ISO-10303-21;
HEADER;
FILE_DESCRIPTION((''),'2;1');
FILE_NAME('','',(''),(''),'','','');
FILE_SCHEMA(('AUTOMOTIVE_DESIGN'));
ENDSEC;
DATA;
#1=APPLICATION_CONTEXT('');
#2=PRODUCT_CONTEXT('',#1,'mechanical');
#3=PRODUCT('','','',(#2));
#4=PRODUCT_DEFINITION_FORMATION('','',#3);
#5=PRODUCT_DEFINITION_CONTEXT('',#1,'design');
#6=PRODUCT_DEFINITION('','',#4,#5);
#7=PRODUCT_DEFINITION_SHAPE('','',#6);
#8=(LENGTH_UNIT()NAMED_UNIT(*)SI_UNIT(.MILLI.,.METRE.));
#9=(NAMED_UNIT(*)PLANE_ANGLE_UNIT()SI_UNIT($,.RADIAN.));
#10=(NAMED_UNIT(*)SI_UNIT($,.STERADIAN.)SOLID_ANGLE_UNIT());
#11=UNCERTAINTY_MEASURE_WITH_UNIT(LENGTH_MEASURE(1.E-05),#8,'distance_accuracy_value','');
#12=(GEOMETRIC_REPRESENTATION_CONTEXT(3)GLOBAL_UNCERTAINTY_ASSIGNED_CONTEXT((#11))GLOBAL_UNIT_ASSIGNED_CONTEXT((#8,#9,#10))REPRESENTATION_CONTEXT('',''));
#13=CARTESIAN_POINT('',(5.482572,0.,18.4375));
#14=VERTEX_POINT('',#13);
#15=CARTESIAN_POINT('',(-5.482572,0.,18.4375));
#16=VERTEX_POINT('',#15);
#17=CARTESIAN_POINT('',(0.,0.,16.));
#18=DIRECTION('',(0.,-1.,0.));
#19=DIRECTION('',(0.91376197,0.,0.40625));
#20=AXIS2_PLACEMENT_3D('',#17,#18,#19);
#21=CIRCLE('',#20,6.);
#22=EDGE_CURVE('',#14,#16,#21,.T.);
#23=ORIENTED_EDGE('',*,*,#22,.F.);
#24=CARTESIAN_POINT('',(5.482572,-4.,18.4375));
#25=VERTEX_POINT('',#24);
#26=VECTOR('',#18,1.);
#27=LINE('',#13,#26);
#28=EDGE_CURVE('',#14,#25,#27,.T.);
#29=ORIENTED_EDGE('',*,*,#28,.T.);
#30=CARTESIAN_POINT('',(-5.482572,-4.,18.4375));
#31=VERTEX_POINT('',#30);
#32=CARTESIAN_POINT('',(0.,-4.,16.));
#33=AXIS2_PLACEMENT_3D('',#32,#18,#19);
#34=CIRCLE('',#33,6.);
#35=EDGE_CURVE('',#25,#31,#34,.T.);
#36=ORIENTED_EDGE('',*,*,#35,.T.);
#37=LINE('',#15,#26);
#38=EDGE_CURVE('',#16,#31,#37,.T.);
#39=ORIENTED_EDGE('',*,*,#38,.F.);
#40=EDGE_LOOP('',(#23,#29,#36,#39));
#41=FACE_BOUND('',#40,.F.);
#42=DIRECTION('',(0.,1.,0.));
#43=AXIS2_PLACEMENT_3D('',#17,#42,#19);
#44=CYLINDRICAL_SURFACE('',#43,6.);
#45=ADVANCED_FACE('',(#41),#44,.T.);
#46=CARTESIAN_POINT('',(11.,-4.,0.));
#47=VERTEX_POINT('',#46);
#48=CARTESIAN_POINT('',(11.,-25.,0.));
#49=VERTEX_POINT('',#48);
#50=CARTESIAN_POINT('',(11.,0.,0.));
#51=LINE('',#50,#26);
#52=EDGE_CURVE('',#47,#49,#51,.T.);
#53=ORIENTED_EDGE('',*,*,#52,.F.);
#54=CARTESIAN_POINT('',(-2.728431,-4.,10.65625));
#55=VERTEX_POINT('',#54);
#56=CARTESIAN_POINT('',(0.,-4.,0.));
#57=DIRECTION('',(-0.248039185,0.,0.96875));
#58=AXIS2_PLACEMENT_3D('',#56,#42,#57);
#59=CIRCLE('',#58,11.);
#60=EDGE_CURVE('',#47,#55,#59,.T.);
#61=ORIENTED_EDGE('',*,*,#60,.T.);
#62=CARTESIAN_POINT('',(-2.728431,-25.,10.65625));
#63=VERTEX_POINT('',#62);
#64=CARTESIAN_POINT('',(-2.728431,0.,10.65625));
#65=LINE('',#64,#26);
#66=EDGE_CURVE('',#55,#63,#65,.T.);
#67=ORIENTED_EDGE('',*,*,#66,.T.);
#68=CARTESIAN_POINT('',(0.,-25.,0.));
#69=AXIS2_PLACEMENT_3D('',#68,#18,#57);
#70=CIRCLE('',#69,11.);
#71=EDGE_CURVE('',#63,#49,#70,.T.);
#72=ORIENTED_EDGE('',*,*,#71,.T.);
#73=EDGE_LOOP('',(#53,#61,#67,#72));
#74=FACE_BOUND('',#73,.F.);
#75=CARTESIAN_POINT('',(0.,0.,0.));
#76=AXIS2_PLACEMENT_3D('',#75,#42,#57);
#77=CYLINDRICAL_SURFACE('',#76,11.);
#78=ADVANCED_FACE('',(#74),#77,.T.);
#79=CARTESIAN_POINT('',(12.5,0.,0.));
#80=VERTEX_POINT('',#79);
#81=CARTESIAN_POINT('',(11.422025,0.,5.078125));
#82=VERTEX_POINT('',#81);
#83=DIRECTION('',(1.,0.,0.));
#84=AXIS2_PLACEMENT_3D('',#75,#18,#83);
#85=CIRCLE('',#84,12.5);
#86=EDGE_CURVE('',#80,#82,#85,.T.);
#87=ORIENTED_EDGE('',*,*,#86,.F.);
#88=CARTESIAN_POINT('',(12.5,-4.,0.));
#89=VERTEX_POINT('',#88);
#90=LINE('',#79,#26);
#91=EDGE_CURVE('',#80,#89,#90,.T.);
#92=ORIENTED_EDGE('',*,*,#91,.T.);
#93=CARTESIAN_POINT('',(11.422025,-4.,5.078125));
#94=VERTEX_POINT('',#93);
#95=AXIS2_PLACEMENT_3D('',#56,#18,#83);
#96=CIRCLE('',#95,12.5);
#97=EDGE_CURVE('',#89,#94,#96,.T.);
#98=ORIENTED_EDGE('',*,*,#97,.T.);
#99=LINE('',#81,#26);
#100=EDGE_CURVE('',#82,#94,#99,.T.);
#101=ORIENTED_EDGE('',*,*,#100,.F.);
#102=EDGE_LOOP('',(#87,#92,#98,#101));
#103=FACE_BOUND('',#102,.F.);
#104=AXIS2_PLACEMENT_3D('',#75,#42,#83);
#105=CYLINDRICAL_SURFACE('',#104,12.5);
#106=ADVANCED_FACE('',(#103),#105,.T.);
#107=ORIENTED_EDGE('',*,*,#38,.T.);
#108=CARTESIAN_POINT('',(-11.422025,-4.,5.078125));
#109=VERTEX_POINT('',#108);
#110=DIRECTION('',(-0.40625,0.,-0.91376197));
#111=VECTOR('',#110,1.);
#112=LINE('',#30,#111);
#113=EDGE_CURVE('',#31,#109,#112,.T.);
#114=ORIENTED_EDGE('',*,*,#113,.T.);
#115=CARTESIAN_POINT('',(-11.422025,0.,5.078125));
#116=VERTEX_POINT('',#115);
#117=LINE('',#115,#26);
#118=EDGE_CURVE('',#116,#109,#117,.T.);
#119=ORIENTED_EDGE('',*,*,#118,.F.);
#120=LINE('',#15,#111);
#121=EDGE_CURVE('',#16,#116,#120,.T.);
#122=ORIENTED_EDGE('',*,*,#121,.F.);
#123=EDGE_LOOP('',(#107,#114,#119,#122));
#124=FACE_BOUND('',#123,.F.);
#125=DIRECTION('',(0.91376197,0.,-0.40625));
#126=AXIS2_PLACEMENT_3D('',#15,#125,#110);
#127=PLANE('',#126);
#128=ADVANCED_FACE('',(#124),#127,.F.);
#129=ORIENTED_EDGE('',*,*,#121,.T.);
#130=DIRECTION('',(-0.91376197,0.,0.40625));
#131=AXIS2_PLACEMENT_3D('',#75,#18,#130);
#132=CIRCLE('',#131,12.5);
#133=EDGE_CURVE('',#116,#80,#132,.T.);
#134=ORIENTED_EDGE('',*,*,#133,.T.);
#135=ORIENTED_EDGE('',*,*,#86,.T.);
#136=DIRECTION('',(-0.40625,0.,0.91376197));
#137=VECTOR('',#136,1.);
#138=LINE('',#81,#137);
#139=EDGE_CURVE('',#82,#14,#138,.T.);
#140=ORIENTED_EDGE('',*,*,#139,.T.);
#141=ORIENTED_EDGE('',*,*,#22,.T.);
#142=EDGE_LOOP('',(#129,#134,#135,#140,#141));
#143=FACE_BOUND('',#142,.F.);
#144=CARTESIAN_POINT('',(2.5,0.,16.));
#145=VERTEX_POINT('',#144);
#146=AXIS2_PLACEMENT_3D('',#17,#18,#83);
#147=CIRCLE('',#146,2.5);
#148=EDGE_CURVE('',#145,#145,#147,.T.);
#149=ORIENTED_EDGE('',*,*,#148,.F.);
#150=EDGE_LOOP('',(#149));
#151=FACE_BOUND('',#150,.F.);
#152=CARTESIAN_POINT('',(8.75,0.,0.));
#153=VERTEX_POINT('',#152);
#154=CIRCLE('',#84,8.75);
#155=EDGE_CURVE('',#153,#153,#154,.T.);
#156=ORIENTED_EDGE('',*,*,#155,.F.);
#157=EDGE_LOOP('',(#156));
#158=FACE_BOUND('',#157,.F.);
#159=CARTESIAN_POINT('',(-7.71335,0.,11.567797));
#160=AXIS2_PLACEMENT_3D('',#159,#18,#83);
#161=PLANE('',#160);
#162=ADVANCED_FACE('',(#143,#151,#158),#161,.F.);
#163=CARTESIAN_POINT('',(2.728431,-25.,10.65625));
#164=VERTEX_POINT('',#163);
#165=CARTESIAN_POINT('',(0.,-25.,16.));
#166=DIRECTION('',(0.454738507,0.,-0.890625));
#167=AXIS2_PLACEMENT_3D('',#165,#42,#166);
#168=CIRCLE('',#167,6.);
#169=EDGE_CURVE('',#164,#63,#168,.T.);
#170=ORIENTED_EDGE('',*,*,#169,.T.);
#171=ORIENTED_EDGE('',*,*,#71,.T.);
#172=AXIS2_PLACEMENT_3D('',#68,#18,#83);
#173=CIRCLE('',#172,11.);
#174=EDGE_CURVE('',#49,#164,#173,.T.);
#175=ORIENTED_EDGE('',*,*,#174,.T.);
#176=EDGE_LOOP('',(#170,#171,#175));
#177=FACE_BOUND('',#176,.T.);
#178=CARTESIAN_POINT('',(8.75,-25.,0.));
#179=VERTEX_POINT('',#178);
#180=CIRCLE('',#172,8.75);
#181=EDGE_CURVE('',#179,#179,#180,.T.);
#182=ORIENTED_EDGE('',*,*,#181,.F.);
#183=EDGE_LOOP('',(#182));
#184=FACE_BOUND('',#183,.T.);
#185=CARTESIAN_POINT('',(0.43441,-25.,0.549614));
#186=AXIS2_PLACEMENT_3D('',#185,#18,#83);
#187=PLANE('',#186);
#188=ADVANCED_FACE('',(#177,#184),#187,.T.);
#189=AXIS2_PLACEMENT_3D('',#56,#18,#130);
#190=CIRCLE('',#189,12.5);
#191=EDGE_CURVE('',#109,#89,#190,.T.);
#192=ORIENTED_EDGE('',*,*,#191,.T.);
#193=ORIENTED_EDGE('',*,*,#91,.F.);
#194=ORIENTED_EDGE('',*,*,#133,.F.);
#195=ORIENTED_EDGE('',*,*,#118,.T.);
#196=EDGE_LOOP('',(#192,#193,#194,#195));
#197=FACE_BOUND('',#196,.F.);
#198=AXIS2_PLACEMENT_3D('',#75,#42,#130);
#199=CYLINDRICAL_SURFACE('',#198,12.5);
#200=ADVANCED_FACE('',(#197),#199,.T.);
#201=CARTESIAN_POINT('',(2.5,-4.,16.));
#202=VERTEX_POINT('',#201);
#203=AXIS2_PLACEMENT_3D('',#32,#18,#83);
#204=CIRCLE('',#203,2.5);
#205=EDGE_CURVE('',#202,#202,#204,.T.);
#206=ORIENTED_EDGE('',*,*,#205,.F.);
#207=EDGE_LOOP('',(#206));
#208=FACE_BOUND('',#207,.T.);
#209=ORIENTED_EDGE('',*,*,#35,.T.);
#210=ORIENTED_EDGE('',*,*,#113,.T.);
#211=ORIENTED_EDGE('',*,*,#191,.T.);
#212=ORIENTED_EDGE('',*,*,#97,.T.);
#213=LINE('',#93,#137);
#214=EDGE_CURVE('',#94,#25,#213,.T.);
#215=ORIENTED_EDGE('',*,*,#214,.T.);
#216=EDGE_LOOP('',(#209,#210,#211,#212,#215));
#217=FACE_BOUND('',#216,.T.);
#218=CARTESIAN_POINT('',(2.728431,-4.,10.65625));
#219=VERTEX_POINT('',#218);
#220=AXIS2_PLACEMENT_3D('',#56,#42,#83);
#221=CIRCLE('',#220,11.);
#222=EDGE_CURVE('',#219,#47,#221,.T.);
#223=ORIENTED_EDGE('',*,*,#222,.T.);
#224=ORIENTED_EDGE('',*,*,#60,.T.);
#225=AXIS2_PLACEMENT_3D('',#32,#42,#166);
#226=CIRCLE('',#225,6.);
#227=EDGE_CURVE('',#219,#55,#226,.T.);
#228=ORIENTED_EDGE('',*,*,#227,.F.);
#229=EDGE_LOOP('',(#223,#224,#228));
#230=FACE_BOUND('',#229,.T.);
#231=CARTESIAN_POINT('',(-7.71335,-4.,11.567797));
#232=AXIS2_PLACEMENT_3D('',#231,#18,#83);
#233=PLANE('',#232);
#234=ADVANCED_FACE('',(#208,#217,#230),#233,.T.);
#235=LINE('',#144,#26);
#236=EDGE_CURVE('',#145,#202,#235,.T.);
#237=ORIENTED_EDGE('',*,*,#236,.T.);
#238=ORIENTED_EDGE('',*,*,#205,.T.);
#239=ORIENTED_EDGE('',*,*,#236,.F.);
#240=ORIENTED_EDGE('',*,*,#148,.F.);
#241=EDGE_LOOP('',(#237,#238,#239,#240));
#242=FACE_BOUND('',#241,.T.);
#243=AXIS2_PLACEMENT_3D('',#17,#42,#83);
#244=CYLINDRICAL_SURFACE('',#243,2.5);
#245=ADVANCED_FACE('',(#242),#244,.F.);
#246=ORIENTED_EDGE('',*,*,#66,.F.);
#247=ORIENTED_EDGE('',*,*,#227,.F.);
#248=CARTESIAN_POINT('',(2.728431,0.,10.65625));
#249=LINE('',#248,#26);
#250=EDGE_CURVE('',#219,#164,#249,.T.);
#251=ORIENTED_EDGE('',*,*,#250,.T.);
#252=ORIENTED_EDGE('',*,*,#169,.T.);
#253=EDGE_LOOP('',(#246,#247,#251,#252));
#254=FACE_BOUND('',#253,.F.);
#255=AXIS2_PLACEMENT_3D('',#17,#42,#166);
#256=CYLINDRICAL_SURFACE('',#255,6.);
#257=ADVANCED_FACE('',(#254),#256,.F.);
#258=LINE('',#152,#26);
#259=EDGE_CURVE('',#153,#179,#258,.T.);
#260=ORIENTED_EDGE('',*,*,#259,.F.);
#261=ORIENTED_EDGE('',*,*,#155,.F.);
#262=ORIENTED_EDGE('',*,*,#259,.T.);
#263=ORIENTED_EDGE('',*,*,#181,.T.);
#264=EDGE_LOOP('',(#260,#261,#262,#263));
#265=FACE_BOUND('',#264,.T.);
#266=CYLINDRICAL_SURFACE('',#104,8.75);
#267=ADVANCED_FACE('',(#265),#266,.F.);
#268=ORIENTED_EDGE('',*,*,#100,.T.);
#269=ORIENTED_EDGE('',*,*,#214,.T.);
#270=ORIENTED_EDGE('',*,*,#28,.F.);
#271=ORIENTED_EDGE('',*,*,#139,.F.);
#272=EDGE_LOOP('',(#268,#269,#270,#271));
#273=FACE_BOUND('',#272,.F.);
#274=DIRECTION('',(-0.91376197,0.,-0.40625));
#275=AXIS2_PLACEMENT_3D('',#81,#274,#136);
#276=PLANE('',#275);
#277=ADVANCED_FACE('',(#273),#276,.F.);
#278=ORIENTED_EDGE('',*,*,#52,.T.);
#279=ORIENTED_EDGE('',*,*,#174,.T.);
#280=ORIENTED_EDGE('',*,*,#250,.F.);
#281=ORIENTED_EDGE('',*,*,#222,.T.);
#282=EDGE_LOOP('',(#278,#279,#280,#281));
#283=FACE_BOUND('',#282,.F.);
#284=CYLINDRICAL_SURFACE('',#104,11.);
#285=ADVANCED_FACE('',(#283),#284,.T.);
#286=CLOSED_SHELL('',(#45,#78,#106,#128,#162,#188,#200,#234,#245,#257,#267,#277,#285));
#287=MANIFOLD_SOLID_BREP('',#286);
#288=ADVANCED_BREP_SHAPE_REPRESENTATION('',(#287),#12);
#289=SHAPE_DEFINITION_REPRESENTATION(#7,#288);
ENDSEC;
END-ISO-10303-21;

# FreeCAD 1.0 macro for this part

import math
import FreeCAD as App
import Part
import Sketcher
from FreeCAD import Vector
Q = App.Units.Quantity

doc = App.newDocument("Part")
params = doc.addObject("Spreadsheet::Sheet", "Params")
for row, (alias, value) in enumerate([
    ("sketch1_diameter", "5 mm"),
    ("sketch1_radius", "6 mm"),
    ("sketch1_diameter2", "17.5 mm"),
    ("sketch1_radius2", "12.5 mm"),
    ("pad1_length", "4 mm"),
    ("sketch2_radius", "11 mm"),
    ("sketch2_radius2", "6 mm"),
    ("sketch2_diameter", "17.5 mm"),
    ("pad2_length", "25 mm"),
], start=1):
    params.set(f"A{row}", alias)
    params.set(f"B{row}", "=" + value)
    params.setAlias(f"B{row}", alias)

body = doc.addObject("PartDesign::Body", "Body")

# Sketch on XZ plane
sketch1 = doc.addObject("Sketcher::SketchObject", "Sketch")
body.addObject(sketch1)
sketch1.AttachmentSupport = (doc.XZ_Plane, [""])
sketch1.MapMode = "FlatFace"
sketch1.addGeometry(Part.LineSegment(Vector(-5.5, 18.4, 0), Vector(-11.4, 5.1, 0)), False)
sketch1.addGeometry(Part.ArcOfCircle(Part.Circle(Vector(0, 0, 0), Vector(0, 0, 1), 12.5), math.radians(156), math.radians(360)), False)
sketch1.addGeometry(Part.ArcOfCircle(Part.Circle(Vector(0, 0, 0), Vector(0, 0, 1), 12.5), math.radians(0), math.radians(24)), False)
sketch1.addGeometry(Part.LineSegment(Vector(11.4, 5.1, 0), Vector(5.5, 18.4, 0)), False)
sketch1.addGeometry(Part.ArcOfCircle(Part.Circle(Vector(0, 16, 0), Vector(0, 0, 1), 6), math.radians(24), math.radians(156)), False)
sketch1.addGeometry(Part.Circle(Vector(0, 0, 0), Vector(0, 0, 1), 8.8), False)
sketch1.addGeometry(Part.Circle(Vector(0, 16, 0), Vector(0, 0, 1), 2.5), False)
sketch1.addConstraint(Sketcher.Constraint("Tangent", 0, 2, 1, 1))
sketch1.addConstraint(Sketcher.Constraint("Tangent", 1, 2, 2, 1))
sketch1.addConstraint(Sketcher.Constraint("Tangent", 2, 2, 3, 1))
sketch1.addConstraint(Sketcher.Constraint("Tangent", 3, 2, 4, 1))
sketch1.addConstraint(Sketcher.Constraint("Tangent", 4, 2, 0, 1))
sketch1.addConstraint(Sketcher.Constraint("Coincident", 1, 3, -1, 1))
sketch1.addConstraint(Sketcher.Constraint("Coincident", 5, 3, -1, 1))
sketch1.addConstraint(Sketcher.Constraint("Coincident", 6, 3, 4, 3))
sketch1.addConstraint(Sketcher.Constraint("Equal", 1, 2))
sketch1.addConstraint(Sketcher.Constraint("PointOnObject", 4, 3, -2))
sketch1.addConstraint(Sketcher.Constraint("PointOnObject", 1, 2, -1))
sketch1.addConstraint(Sketcher.Constraint("Diameter", 6, Q("5 mm")))
sketch1.addConstraint(Sketcher.Constraint("Radius", 4, Q("6 mm")))
sketch1.addConstraint(Sketcher.Constraint("Diameter", 5, Q("17.5 mm")))
sketch1.addConstraint(Sketcher.Constraint("Radius", 1, Q("12.5 mm")))
sketch1.addConstraint(Sketcher.Constraint("DistanceY", -1, 1, 4, 3, Q("16 mm")))
sketch1.setExpression("Constraints[11]", "Params.sketch1_diameter")
sketch1.setExpression("Constraints[12]", "Params.sketch1_radius")
sketch1.setExpression("Constraints[13]", "Params.sketch1_diameter2")
sketch1.setExpression("Constraints[14]", "Params.sketch1_radius2")
pad1 = doc.addObject("PartDesign::Pad", "Pad")
body.addObject(pad1)
pad1.Profile = sketch1
pad1.setExpression("Length", "Params.pad1_length")

# Sketch on XZ plane
sketch2 = doc.addObject("Sketcher::SketchObject", "Sketch001")
body.addObject(sketch2)
sketch2.AttachmentSupport = (doc.XZ_Plane, [""])
sketch2.MapMode = "FlatFace"
sketch2.addGeometry(Part.ArcOfCircle(Part.Circle(Vector(0, 0, 0), Vector(0, 0, 1), 11), math.radians(104), math.radians(360)), False)
sketch2.addGeometry(Part.ArcOfCircle(Part.Circle(Vector(0, 0, 0), Vector(0, 0, 1), 11), math.radians(0), math.radians(76)), False)
sketch2.addGeometry(Part.ArcOfCircle(Part.Circle(Vector(0, 16, 0), Vector(0, 0, 1), 6), math.radians(-117), math.radians(-63)), False)
sketch2.addGeometry(Part.Circle(Vector(0, 0, 0), Vector(0, 0, 1), 9), False)
sketch2.addConstraint(Sketcher.Constraint("Tangent", 0, 2, 1, 1))
sketch2.addConstraint(Sketcher.Constraint("Coincident", 1, 2, 2, 2))
sketch2.addConstraint(Sketcher.Constraint("Coincident", 2, 1, 0, 1))
sketch2.addConstraint(Sketcher.Constraint("Coincident", 0, 3, -1, 1))
sketch2.addConstraint(Sketcher.Constraint("Coincident", 3, 3, -1, 1))
sketch2.addConstraint(Sketcher.Constraint("Equal", 0, 1))
sketch2.addConstraint(Sketcher.Constraint("PointOnObject", 2, 3, -2))
sketch2.addConstraint(Sketcher.Constraint("PointOnObject", 0, 2, -1))
sketch2.addConstraint(Sketcher.Constraint("Radius", 0, Q("11 mm")))
sketch2.addConstraint(Sketcher.Constraint("Radius", 2, Q("6 mm")))
sketch2.addConstraint(Sketcher.Constraint("Diameter", 3, Q("17.5 mm")))
sketch2.addConstraint(Sketcher.Constraint("DistanceY", -1, 1, 2, 3, Q("16 mm")))
sketch2.setExpression("Constraints[8]", "Params.sketch2_radius")
sketch2.setExpression("Constraints[9]", "Params.sketch2_radius2")
sketch2.setExpression("Constraints[10]", "Params.sketch2_diameter")
pad2 = doc.addObject("PartDesign::Pad", "Pad001")
body.addObject(pad2)
pad2.Profile = sketch2
pad2.setExpression("Length", "Params.pad2_length")

doc.recompute()
